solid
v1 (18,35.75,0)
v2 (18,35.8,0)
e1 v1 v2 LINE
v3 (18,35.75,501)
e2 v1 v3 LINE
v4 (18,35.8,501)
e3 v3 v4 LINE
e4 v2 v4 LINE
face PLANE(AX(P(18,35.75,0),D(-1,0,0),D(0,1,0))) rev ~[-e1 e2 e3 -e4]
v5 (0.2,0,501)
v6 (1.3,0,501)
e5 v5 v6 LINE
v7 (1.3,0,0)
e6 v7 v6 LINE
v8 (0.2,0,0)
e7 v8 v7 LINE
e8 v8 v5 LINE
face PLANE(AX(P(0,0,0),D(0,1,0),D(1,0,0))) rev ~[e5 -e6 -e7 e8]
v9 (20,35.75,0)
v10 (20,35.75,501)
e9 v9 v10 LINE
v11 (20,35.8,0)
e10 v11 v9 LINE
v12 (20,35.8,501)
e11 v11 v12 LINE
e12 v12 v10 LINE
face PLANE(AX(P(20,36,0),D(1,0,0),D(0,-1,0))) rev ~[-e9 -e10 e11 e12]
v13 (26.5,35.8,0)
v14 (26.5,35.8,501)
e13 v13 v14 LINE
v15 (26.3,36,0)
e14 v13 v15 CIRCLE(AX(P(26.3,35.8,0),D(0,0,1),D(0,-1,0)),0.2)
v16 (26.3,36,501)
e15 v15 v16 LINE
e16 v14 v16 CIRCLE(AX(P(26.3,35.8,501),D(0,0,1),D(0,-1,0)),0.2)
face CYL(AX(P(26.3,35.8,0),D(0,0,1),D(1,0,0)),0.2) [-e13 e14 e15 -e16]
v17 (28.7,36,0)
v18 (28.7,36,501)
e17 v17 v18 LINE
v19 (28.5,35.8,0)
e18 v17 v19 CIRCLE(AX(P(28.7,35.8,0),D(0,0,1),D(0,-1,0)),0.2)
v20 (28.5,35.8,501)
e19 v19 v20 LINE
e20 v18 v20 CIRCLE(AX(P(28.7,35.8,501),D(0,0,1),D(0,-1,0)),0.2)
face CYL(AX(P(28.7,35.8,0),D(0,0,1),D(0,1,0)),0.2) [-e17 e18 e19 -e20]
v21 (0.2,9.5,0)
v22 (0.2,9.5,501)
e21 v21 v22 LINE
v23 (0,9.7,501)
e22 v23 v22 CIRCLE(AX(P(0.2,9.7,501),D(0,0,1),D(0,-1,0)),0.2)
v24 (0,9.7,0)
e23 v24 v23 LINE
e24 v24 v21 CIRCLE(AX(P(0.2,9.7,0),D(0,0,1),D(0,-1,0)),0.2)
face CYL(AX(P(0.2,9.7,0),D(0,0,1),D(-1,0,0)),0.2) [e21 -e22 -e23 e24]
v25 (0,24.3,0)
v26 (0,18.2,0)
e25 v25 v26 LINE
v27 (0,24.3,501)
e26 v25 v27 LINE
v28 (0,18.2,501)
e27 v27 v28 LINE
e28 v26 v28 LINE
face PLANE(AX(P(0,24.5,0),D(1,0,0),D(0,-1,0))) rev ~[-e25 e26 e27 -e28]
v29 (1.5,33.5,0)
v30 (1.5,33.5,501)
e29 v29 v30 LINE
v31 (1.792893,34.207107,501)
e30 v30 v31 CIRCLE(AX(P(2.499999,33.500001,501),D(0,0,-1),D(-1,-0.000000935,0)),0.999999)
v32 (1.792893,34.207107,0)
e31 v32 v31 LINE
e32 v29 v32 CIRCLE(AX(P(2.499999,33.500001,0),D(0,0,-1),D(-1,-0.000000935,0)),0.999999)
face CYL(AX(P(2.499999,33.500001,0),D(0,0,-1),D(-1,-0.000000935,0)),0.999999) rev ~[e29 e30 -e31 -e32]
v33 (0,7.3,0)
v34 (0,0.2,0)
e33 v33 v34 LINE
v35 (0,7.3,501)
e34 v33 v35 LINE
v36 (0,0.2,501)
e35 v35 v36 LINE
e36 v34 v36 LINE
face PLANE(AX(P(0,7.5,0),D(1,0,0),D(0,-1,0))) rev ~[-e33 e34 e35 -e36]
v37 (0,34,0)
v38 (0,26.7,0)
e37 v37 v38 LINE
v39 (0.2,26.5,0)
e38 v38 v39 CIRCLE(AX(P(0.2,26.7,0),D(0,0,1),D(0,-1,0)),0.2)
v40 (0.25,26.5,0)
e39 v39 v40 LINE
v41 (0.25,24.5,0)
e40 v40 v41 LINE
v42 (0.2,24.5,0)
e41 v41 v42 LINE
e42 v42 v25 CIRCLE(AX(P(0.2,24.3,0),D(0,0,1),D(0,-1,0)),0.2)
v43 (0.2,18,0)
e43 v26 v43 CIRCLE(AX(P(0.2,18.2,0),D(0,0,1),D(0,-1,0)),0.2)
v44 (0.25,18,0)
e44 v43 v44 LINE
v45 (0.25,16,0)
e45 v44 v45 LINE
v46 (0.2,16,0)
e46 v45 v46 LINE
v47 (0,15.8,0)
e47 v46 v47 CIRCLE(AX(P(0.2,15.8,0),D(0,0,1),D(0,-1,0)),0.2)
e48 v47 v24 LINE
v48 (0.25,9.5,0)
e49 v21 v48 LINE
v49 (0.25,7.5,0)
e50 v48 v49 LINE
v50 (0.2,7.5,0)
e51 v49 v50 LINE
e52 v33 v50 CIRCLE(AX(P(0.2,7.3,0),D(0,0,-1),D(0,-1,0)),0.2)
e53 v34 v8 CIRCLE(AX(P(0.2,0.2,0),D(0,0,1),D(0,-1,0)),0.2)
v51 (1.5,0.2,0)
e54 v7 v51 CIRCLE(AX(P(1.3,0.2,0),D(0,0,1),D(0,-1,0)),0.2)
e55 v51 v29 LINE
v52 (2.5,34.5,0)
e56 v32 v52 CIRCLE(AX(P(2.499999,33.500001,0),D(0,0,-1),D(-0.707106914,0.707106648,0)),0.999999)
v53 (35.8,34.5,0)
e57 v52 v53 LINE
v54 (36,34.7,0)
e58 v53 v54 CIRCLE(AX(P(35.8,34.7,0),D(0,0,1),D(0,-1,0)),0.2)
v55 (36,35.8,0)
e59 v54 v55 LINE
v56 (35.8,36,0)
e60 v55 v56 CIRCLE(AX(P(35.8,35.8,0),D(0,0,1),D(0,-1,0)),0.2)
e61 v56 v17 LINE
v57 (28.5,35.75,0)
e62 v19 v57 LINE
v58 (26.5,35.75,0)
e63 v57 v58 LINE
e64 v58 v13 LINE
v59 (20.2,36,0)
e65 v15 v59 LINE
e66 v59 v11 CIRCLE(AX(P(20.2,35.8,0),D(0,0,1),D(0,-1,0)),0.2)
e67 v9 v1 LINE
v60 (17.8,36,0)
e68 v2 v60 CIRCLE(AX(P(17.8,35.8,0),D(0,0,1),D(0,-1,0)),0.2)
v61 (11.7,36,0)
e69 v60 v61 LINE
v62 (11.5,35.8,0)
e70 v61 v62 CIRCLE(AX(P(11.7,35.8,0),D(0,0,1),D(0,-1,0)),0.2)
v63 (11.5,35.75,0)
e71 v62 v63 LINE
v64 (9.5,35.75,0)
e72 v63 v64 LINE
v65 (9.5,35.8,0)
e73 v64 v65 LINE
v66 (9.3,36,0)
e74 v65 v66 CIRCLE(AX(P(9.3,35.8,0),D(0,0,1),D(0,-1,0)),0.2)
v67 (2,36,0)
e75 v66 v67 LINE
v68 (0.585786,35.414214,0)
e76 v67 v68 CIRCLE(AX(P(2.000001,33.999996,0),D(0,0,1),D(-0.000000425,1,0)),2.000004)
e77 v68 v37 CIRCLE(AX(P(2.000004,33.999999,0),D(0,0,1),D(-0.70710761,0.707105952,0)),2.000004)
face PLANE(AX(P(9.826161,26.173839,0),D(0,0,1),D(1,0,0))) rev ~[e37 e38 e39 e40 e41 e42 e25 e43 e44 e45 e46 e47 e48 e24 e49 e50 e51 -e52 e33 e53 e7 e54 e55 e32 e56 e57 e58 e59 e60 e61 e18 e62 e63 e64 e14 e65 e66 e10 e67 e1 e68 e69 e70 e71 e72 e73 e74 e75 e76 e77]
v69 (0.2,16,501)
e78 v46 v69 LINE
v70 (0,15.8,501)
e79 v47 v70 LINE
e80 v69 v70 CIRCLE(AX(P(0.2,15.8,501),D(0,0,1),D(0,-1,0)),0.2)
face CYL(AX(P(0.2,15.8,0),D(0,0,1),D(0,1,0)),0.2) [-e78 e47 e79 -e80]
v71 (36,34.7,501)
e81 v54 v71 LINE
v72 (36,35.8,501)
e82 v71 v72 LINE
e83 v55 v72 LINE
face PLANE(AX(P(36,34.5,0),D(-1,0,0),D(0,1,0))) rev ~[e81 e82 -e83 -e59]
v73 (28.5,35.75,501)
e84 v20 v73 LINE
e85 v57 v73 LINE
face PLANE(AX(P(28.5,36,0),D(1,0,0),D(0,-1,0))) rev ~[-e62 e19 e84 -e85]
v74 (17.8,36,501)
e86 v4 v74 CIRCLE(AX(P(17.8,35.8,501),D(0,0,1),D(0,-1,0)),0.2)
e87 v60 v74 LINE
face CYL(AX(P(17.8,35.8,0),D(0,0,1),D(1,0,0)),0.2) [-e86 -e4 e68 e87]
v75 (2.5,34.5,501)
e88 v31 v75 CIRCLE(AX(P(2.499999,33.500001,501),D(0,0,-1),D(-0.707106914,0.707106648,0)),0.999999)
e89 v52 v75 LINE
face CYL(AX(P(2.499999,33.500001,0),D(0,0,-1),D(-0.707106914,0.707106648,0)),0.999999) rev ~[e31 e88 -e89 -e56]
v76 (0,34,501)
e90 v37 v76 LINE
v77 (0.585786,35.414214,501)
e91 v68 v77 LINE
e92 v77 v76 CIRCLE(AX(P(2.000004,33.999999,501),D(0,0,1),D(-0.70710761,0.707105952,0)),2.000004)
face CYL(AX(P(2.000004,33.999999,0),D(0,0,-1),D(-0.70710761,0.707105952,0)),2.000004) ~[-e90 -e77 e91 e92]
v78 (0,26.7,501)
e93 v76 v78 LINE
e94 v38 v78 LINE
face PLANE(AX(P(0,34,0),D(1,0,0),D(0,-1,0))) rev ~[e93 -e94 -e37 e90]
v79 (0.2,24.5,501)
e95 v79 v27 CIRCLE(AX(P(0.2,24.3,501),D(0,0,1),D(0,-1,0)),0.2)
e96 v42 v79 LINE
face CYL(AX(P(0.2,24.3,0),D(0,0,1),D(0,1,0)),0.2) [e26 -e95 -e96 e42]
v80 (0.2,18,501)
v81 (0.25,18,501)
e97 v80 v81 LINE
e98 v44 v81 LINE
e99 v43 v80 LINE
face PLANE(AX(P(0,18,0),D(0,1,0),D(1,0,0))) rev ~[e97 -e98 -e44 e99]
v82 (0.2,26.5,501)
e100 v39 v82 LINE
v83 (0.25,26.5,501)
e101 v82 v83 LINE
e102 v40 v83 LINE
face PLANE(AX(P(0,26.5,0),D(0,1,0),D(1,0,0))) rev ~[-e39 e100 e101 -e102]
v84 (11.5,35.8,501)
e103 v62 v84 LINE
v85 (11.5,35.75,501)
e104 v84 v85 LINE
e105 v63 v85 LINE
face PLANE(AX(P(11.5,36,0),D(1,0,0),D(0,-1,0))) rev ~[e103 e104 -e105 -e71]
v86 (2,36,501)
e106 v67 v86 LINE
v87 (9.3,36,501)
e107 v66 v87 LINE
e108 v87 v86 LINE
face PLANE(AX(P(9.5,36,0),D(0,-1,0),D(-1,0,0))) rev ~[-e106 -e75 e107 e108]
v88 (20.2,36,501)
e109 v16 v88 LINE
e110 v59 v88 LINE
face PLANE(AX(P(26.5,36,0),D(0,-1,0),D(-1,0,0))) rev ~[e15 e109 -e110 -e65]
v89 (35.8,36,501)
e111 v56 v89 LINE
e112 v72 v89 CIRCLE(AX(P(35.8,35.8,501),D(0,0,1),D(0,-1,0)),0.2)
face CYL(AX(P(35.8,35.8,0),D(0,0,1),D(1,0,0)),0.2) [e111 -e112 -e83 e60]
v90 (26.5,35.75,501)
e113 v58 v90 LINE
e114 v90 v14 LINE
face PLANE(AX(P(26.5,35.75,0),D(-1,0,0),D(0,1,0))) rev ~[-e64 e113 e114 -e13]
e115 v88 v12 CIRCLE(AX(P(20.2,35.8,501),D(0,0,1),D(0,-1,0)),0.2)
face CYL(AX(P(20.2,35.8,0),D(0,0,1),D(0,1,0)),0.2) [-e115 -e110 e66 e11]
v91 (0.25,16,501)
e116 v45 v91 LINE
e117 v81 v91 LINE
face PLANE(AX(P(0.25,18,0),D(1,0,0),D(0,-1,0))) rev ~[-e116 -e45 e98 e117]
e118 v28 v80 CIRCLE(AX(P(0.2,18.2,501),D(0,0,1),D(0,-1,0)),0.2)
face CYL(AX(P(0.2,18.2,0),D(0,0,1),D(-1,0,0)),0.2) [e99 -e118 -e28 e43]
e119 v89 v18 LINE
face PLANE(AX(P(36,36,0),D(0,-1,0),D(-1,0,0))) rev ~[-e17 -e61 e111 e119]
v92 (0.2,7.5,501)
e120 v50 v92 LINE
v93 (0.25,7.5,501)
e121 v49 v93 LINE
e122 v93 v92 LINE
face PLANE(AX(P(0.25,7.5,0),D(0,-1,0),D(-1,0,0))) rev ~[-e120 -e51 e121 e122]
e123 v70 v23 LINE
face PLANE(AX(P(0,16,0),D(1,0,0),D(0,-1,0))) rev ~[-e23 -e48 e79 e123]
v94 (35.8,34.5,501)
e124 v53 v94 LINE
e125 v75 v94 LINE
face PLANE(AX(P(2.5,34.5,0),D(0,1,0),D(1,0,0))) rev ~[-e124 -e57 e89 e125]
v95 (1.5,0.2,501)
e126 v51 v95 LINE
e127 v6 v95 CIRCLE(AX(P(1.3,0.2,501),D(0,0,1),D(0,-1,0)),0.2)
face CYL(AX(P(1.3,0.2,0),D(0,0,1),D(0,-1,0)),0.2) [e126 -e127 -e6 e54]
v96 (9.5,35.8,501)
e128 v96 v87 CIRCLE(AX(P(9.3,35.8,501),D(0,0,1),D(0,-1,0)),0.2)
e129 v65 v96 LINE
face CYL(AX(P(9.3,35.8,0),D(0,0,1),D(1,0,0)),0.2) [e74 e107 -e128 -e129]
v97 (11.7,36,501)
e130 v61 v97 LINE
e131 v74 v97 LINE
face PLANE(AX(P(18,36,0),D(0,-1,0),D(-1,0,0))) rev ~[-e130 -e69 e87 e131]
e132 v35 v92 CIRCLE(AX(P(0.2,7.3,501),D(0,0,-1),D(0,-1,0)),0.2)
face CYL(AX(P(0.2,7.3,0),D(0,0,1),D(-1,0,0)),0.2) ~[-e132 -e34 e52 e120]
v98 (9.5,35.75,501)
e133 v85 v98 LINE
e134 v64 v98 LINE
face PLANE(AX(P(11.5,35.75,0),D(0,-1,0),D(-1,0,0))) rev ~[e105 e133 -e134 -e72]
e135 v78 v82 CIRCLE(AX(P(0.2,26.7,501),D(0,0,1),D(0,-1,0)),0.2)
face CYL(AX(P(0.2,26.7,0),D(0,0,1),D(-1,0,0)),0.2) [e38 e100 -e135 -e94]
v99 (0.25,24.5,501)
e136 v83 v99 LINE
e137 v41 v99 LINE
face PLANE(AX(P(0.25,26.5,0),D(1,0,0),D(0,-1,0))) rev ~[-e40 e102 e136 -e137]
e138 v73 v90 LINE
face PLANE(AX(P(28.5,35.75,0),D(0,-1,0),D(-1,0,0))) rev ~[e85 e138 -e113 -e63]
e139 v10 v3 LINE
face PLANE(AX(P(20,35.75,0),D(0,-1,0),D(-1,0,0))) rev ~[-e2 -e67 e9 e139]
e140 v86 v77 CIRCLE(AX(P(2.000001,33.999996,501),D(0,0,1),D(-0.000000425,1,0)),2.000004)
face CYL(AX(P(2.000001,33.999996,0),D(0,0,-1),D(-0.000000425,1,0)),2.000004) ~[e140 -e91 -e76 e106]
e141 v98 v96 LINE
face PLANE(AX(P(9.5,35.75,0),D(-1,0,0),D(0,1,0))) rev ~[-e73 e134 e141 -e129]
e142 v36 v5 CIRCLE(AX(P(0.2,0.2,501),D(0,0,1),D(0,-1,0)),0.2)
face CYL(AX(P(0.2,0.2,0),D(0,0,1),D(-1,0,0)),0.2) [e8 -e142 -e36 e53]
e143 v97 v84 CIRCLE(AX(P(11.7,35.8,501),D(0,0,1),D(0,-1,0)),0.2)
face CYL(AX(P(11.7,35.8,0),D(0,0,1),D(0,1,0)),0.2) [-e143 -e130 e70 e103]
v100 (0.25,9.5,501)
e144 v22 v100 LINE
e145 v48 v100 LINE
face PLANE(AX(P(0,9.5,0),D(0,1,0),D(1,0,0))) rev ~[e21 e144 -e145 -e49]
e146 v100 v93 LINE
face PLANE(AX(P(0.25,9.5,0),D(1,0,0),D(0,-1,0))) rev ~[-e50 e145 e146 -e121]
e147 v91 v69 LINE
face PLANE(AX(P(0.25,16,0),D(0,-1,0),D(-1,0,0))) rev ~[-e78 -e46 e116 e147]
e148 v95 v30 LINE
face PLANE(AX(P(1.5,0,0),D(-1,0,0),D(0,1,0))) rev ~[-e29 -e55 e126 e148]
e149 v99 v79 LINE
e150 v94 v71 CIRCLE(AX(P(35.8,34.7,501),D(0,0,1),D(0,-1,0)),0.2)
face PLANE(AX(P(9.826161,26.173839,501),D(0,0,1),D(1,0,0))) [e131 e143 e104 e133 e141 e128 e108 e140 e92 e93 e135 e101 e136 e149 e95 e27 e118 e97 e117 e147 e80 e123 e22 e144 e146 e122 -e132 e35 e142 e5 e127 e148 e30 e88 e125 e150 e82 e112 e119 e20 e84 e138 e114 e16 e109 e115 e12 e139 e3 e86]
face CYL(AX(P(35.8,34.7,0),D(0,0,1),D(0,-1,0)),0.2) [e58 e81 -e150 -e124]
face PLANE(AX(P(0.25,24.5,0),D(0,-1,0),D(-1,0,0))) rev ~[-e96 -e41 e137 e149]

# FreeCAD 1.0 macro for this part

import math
import FreeCAD as App
import Part
import Sketcher
from FreeCAD import Vector
Q = App.Units.Quantity


def edges_at(feature, points):
    """Names of the edges that pass closest to the given points."""
    edges = feature.Shape.Edges
    near = lambda p: min(range(len(edges)), key=lambda i: edges[i].distToShape(Part.Vertex(*p))[0])
    return sorted({f"Edge{near(p) + 1}" for p in points})

doc = App.newDocument("Part")
params = doc.addObject("Spreadsheet::Sheet", "Params")
for row, (alias, value) in enumerate([
    ("sketch1_radius", "0.999999 mm"),
    ("sketch1_width", "2 mm"),
    ("sketch1_width2", "1.5 mm"),
    ("sketch1_width3", "33.5 mm"),
    ("sketch1_width4", "7.5 mm"),
    ("pad1_length", "501 mm"),
    ("fillet_radius", "0.2 mm"),
], start=1):
    params.set(f"A{row}", alias)
    params.set(f"B{row}", "=" + value)
    params.setAlias(f"B{row}", alias)

body = doc.addObject("PartDesign::Body", "Body")

# Sketch on XY plane
sketch1 = doc.addObject("Sketcher::SketchObject", "Sketch")
body.addObject(sketch1)
sketch1.AttachmentSupport = (doc.XY_Plane, [""])
sketch1.MapMode = "FlatFace"
sketch1.addGeometry([
    Part.LineSegment(Vector(0, 7.5, 0), Vector(0, 0, 0)),  # 0
    Part.LineSegment(Vector(0, 0, 0), Vector(1.5, 0, 0)),  # 1
    Part.LineSegment(Vector(1.5, 0, 0), Vector(1.5, 33.5, 0)),  # 2
    Part.ArcOfCircle(Part.Circle(Vector(2.5, 33.5, 0), Vector(0, 0, 1), 1), math.radians(135), math.radians(180)),  # 3
    Part.ArcOfCircle(Part.Circle(Vector(2.5, 33.5, 0), Vector(0, 0, 1), 1), math.radians(90), math.radians(135)),  # 4
    Part.LineSegment(Vector(2.5, 34.5, 0), Vector(36, 34.5, 0)),  # 5
    Part.LineSegment(Vector(36, 34.5, 0), Vector(36, 36, 0)),  # 6
    Part.LineSegment(Vector(36, 36, 0), Vector(28.5, 36, 0)),  # 7
    Part.LineSegment(Vector(28.5, 36, 0), Vector(28.5, 35.75, 0)),  # 8
    Part.LineSegment(Vector(28.5, 35.75, 0), Vector(26.5, 35.75, 0)),  # 9
    Part.LineSegment(Vector(26.5, 35.75, 0), Vector(26.5, 36, 0)),  # 10
    Part.LineSegment(Vector(26.5, 36, 0), Vector(20, 36, 0)),  # 11
    Part.LineSegment(Vector(20, 36, 0), Vector(20, 35.75, 0)),  # 12
    Part.LineSegment(Vector(20, 35.75, 0), Vector(18, 35.75, 0)),  # 13
    Part.LineSegment(Vector(18, 35.75, 0), Vector(18, 36, 0)),  # 14
    Part.LineSegment(Vector(18, 36, 0), Vector(11.5, 36, 0)),  # 15
    Part.LineSegment(Vector(11.5, 36, 0), Vector(11.5, 35.75, 0)),  # 16
    Part.LineSegment(Vector(11.5, 35.75, 0), Vector(9.5, 35.75, 0)),  # 17
    Part.LineSegment(Vector(9.5, 35.75, 0), Vector(9.5, 36, 0)),  # 18
    Part.LineSegment(Vector(9.5, 36, 0), Vector(2, 36, 0)),  # 19
    Part.ArcOfCircle(Part.Circle(Vector(2, 34, 0), Vector(0, 0, 1), 2), math.radians(90), math.radians(135)),  # 20
    Part.ArcOfCircle(Part.Circle(Vector(2, 34, 0), Vector(0, 0, 1), 2), math.radians(135), math.radians(180)),  # 21
    Part.LineSegment(Vector(0, 34, 0), Vector(0, 26.5, 0)),  # 22
    Part.LineSegment(Vector(0, 26.5, 0), Vector(0.25, 26.5, 0)),  # 23
    Part.LineSegment(Vector(0.25, 26.5, 0), Vector(0.25, 24.5, 0)),  # 24
    Part.LineSegment(Vector(0.25, 24.5, 0), Vector(0, 24.5, 0)),  # 25
    Part.LineSegment(Vector(0, 24.5, 0), Vector(0, 18, 0)),  # 26
    Part.LineSegment(Vector(0, 18, 0), Vector(0.25, 18, 0)),  # 27
    Part.LineSegment(Vector(0.25, 18, 0), Vector(0.25, 16, 0)),  # 28
    Part.LineSegment(Vector(0.25, 16, 0), Vector(0, 16, 0)),  # 29
    Part.LineSegment(Vector(0, 16, 0), Vector(0, 9.5, 0)),  # 30
    Part.LineSegment(Vector(0, 9.5, 0), Vector(0.25, 9.5, 0)),  # 31
    Part.LineSegment(Vector(0.25, 9.5, 0), Vector(0.25, 7.5, 0)),  # 32
    Part.LineSegment(Vector(0.25, 7.5, 0), Vector(0, 7.5, 0)),  # 33
], False)
sketch1.addConstraint([
    Sketcher.Constraint("Coincident", 0, 2, 1, 1),
    Sketcher.Constraint("Coincident", 1, 2, 2, 1),
    Sketcher.Constraint("Tangent", 2, 2, 3, 2),
    Sketcher.Constraint("Tangent", 3, 1, 4, 2),
    Sketcher.Constraint("Tangent", 4, 1, 5, 1),
    Sketcher.Constraint("Coincident", 5, 2, 6, 1),
    Sketcher.Constraint("Coincident", 6, 2, 7, 1),
    Sketcher.Constraint("Coincident", 7, 2, 8, 1),
    Sketcher.Constraint("Coincident", 8, 2, 9, 1),
    Sketcher.Constraint("Coincident", 9, 2, 10, 1),
    Sketcher.Constraint("Coincident", 10, 2, 11, 1),
    Sketcher.Constraint("Coincident", 11, 2, 12, 1),
    Sketcher.Constraint("Coincident", 12, 2, 13, 1),
    Sketcher.Constraint("Coincident", 13, 2, 14, 1),
    Sketcher.Constraint("Coincident", 14, 2, 15, 1),
    Sketcher.Constraint("Coincident", 15, 2, 16, 1),
    Sketcher.Constraint("Coincident", 16, 2, 17, 1),
    Sketcher.Constraint("Coincident", 17, 2, 18, 1),
    Sketcher.Constraint("Coincident", 18, 2, 19, 1),
    Sketcher.Constraint("Tangent", 19, 2, 20, 1),
    Sketcher.Constraint("Coincident", 20, 2, 21, 1),
    Sketcher.Constraint("Tangent", 21, 2, 22, 1),
    Sketcher.Constraint("Coincident", 22, 2, 23, 1),
    Sketcher.Constraint("Coincident", 23, 2, 24, 1),
    Sketcher.Constraint("Coincident", 24, 2, 25, 1),
    Sketcher.Constraint("Coincident", 25, 2, 26, 1),
    Sketcher.Constraint("Coincident", 26, 2, 27, 1),
    Sketcher.Constraint("Coincident", 27, 2, 28, 1),
    Sketcher.Constraint("Coincident", 28, 2, 29, 1),
    Sketcher.Constraint("Coincident", 29, 2, 30, 1),
    Sketcher.Constraint("Coincident", 30, 2, 31, 1),
    Sketcher.Constraint("Coincident", 31, 2, 32, 1),
    Sketcher.Constraint("Coincident", 32, 2, 33, 1),
    Sketcher.Constraint("Coincident", 33, 2, 0, 1),
    Sketcher.Constraint("Vertical", 0),
    Sketcher.Constraint("Horizontal", 1),
    Sketcher.Constraint("Vertical", 2),
    Sketcher.Constraint("Horizontal", 5),
    Sketcher.Constraint("Vertical", 6),
    Sketcher.Constraint("Horizontal", 7),
    Sketcher.Constraint("Vertical", 8),
    Sketcher.Constraint("Horizontal", 9),
    Sketcher.Constraint("Vertical", 10),
    Sketcher.Constraint("Horizontal", 11),
    Sketcher.Constraint("Vertical", 12),
    Sketcher.Constraint("Horizontal", 13),
    Sketcher.Constraint("Vertical", 14),
    Sketcher.Constraint("Horizontal", 15),
    Sketcher.Constraint("Vertical", 16),
    Sketcher.Constraint("Horizontal", 17),
    Sketcher.Constraint("Vertical", 18),
    Sketcher.Constraint("Horizontal", 19),
    Sketcher.Constraint("Vertical", 22),
    Sketcher.Constraint("Horizontal", 23),
    Sketcher.Constraint("Vertical", 24),
    Sketcher.Constraint("Horizontal", 25),
    Sketcher.Constraint("Vertical", 26),
    Sketcher.Constraint("Horizontal", 27),
    Sketcher.Constraint("Vertical", 28),
    Sketcher.Constraint("Horizontal", 29),
    Sketcher.Constraint("Vertical", 30),
    Sketcher.Constraint("Horizontal", 31),
    Sketcher.Constraint("Vertical", 32),
    Sketcher.Constraint("Horizontal", 33),
    Sketcher.Constraint("Coincident", 0, 2, -1, 1),
    Sketcher.Constraint("Coincident", 21, 3, 20, 3),
    Sketcher.Constraint("Equal", 3, 4),
    Sketcher.Constraint("PointOnObject", 21, 2, -2),
    Sketcher.Constraint("PointOnObject", 25, 2, -2),
    Sketcher.Constraint("PointOnObject", 29, 2, -2),
    Sketcher.Constraint("Horizontal", 7, 2, 10, 2),
    Sketcher.Constraint("Horizontal", 9, 2, 12, 2),
    Sketcher.Constraint("Horizontal", 11, 2, 14, 2),
    Sketcher.Constraint("Horizontal", 13, 2, 16, 2),
    Sketcher.Constraint("Horizontal", 15, 2, 18, 2),
    Sketcher.Constraint("Vertical", 24, 2, 27, 2),
    Sketcher.Constraint("Vertical", 28, 2, 31, 2),
    Sketcher.Constraint("Equal", 9, 13),
    Sketcher.Constraint("Equal", 11, 15),
    Sketcher.Constraint("Equal", 13, 17),
    Sketcher.Constraint("Equal", 7, 19),
    Sketcher.Constraint("Equal", 19, 0),
    Sketcher.Constraint("Equal", 5, 2),
    Sketcher.Constraint("Equal", 1, 6),
    Sketcher.Constraint("Equal", 33, 8),
    Sketcher.Constraint("Equal", 0, 22),
    Sketcher.Constraint("Equal", 17, 24),
    Sketcher.Constraint("Equal", 15, 26),
    Sketcher.Constraint("Equal", 24, 28),
    Sketcher.Constraint("Equal", 26, 30),
    Sketcher.Constraint("Radius", 3, Q("0.999999 mm")),
    Sketcher.Constraint("DistanceX", 9, 2, 9, 1, Q("2 mm")),
    Sketcher.Constraint("DistanceX", 1, 1, 1, 2, Q("1.5 mm")),
    Sketcher.Constraint("DistanceX", 5, 1, 5, 2, Q("33.5 mm")),
    Sketcher.Constraint("DistanceX", 7, 2, 7, 1, Q("7.5 mm")),
    Sketcher.Constraint("DistanceX", 11, 2, 11, 1, Q("6.5 mm")),
    Sketcher.Constraint("DistanceX", 23, 1, 23, 2, Q("0.25 mm")),
    Sketcher.Constraint("DistanceY", 20, 3, 3, 1, Q("0.207111 mm")),
    Sketcher.Constraint("DistanceY", 20, 3, 20, 2, Q("1.414218 mm")),
])
sketch1.setExpression("Constraints[90]", "Params.sketch1_radius")
sketch1.setExpression("Constraints[91]", "Params.sketch1_width")
sketch1.setExpression("Constraints[92]", "Params.sketch1_width2")
sketch1.setExpression("Constraints[93]", "Params.sketch1_width3")
sketch1.setExpression("Constraints[94]", "Params.sketch1_width4")
pad1 = doc.addObject("PartDesign::Pad", "Pad")
body.addObject(pad1)
pad1.Profile = sketch1
pad1.setExpression("Length", "Params.pad1_length")
doc.recompute()

fillet = doc.addObject("PartDesign::Fillet", "Fillet")
body.addObject(fillet)
fillet.Base = (pad1, edges_at(pad1, [
    (0, 16, 250.5),
    (0, 18, 250.5),
    (0, 9.5, 250.5),
    (0, 7.5, 250.5),
    (0, 26.5, 250.5),
    (0, 24.5, 250.5),
    (9.5, 36, 250.5),
    (11.5, 36, 250.5),
    (18, 36, 250.5),
    (20, 36, 250.5),
    (26.5, 36, 250.5),
    (28.5, 36, 250.5),
    (36, 36, 250.5),
    (36, 34.5, 250.5),
    (0, 0, 250.5),
    (1.5, 0, 250.5),
]))
fillet.setExpression("Radius", "Params.fillet_radius")

doc.recompute()
